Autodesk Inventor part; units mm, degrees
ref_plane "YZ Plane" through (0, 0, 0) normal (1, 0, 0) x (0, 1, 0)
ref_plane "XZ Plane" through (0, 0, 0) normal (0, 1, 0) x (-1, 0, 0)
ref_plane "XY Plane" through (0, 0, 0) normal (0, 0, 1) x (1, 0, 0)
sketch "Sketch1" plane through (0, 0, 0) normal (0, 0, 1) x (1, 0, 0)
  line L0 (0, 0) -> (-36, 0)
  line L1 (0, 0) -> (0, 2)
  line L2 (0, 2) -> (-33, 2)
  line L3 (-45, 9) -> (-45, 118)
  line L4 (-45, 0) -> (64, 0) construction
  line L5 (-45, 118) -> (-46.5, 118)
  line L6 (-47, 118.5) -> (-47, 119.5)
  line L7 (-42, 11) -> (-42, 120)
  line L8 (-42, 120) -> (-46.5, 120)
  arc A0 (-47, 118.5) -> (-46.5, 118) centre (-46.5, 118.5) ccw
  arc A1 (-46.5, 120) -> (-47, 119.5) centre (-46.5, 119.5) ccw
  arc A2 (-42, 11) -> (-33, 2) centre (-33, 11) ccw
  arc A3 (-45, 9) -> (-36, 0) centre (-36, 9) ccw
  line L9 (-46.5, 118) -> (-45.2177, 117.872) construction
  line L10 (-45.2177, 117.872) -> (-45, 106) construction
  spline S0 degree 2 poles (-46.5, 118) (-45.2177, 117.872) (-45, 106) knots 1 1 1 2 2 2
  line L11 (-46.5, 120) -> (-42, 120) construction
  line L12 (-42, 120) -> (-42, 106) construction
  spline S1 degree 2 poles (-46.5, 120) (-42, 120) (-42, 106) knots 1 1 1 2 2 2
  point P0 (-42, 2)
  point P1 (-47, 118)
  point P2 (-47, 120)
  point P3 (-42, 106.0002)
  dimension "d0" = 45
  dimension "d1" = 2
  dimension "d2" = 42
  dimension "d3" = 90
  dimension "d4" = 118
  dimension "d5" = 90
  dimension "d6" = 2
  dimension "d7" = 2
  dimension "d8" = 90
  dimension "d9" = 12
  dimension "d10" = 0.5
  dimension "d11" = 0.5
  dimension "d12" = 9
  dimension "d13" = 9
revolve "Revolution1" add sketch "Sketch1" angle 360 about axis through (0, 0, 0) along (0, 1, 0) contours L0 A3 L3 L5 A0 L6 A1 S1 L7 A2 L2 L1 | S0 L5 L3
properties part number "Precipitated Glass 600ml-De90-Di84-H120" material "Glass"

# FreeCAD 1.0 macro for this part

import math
import FreeCAD as App
import Part
import Sketcher
Q = App.Units.Quantity

doc = App.newDocument("Part")
body = doc.addObject("PartDesign::Body", "Body")

sketch1 = doc.addObject("Sketcher::SketchObject", "Sketch")
body.addObject(sketch1)
sketch1.AttachmentSupport = (doc.XY_Plane, [""])
sketch1.MapMode = "FlatFace"
sketch1.addGeometry([
    Part.LineSegment(App.Vector(-36, 0, 0), App.Vector(0, 0, 0)),
    Part.LineSegment(App.Vector(0, 0, 0), App.Vector(0, 2, 0)),
    Part.LineSegment(App.Vector(0, 2, 0), App.Vector(-33, 2, 0)),
    Part.ArcOfCircle(Part.Circle(App.Vector(-33, 11, 0), App.Vector(0, 0, 1), 9), math.radians(180), math.radians(270)),
    Part.LineSegment(App.Vector(-42, 11, 0), App.Vector(-42, 106, 0)),
    Part.BSplineCurve([App.Vector(-46.5, 120, 0), App.Vector(-42, 120, 0), App.Vector(-42, 106, 0)], [3, 3], [1, 2], False, 2, [1, 1, 1], False),
    Part.ArcOfCircle(Part.Circle(App.Vector(-46.5, 119.5, 0), App.Vector(0, 0, 1), 0.5), math.radians(90), math.radians(180)),
    Part.LineSegment(App.Vector(-47, 119.5, 0), App.Vector(-47, 118.5, 0)),
    Part.ArcOfCircle(Part.Circle(App.Vector(-46.5, 118.5, 0), App.Vector(0, 0, 1), 0.5), math.radians(180), math.radians(270)),
    Part.BSplineCurve([App.Vector(-46.5, 118, 0), App.Vector(-45.2177, 117.872, 0), App.Vector(-45, 106, 0)], [3, 3], [1, 2], False, 2, [1, 1, 1], False),
    Part.LineSegment(App.Vector(-45, 106, 0), App.Vector(-45, 9, 0)),
    Part.ArcOfCircle(Part.Circle(App.Vector(-36, 9, 0), App.Vector(0, 0, 1), 9), math.radians(180), math.radians(270)),
], False)
sketch1.addConstraint([
    Sketcher.Constraint("Block", 5),
    Sketcher.Constraint("Block", 9),
    Sketcher.Constraint("Coincident", 0, 2, 1, 1),
    Sketcher.Constraint("Coincident", 1, 2, 2, 1),
    Sketcher.Constraint("Tangent", 2, 2, 3, 2),
    Sketcher.Constraint("Tangent", 3, 1, 4, 1),
    Sketcher.Constraint("Coincident", 4, 2, 5, 2),
    Sketcher.Constraint("Coincident", 5, 1, 6, 1),
    Sketcher.Constraint("Tangent", 6, 2, 7, 1),
    Sketcher.Constraint("Tangent", 7, 2, 8, 1),
    Sketcher.Constraint("Coincident", 8, 2, 9, 1),
    Sketcher.Constraint("Coincident", 9, 2, 10, 1),
    Sketcher.Constraint("Tangent", 10, 2, 11, 1),
    Sketcher.Constraint("Tangent", 11, 2, 0, 1),
    Sketcher.Constraint("Horizontal", 0),
    Sketcher.Constraint("Vertical", 1),
    Sketcher.Constraint("Horizontal", 2),
    Sketcher.Constraint("Vertical", 4),
    Sketcher.Constraint("Vertical", 7),
    Sketcher.Constraint("Vertical", 10),
    Sketcher.Constraint("Coincident", 0, 2, -1, 1),
    Sketcher.Constraint("Equal", 6, 8),
    Sketcher.Constraint("Equal", 3, 11),
    Sketcher.Constraint("Vertical", 6, 3, 8, 2),
    Sketcher.Constraint("Radius", 3, Q("9 mm")),
    Sketcher.Constraint("Radius", 6, Q("0.5 mm")),
    Sketcher.Constraint("DistanceY", 1, 1, 1, 2, Q("2 mm")),
])
revolution = doc.addObject("PartDesign::Revolution", "Revolution")
body.addObject(revolution)
revolution.Profile = sketch1
revolution.ReferenceAxis = (sketch1, ["V_Axis"])
revolution.Angle = 360

doc.recompute()
